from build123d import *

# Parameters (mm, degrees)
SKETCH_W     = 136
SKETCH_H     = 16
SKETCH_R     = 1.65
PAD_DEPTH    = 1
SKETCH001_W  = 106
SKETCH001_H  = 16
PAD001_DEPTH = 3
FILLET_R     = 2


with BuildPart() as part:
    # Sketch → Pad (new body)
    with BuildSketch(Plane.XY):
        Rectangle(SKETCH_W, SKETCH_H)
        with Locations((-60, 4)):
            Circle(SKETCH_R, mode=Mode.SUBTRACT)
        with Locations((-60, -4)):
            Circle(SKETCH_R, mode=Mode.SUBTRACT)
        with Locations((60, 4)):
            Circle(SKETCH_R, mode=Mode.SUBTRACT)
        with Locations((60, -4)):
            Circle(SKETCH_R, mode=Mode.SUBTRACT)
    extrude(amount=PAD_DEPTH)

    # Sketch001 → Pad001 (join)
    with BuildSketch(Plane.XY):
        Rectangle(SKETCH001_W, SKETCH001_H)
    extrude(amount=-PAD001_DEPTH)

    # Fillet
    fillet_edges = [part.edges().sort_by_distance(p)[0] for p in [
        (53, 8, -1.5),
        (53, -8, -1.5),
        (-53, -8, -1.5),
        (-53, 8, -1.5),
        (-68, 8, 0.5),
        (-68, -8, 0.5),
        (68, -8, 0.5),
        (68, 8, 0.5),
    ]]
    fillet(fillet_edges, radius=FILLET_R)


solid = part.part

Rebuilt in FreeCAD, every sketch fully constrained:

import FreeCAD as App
import Part
import Sketcher


def edges_at(feature, points):
    """Names of the edges that pass closest to the given points."""
    edges = feature.Shape.Edges
    near = lambda p: min(range(len(edges)), key=lambda i: edges[i].distToShape(Part.Vertex(*p))[0])
    return sorted({f"Edge{near(p) + 1}" for p in points})

doc = App.newDocument("Part")
params = doc.addObject("Spreadsheet::Sheet", "Params")
for row, (alias, value) in enumerate([
    ("sketch1_diameter", "3.3 mm"),
    ("sketch1_width", "136 mm"),
    ("sketch1_height", "16 mm"),
    ("pad1_length", "1 mm"),
    ("sketch2_width", "106 mm"),
    ("sketch2_height", "16 mm"),
    ("pad2_length", "3 mm"),
    ("fillet_radius", "2 mm"),
], start=1):
    params.set(f"A{row}", alias)
    params.set(f"B{row}", "=" + value)
    params.setAlias(f"B{row}", alias)

body = doc.addObject("PartDesign::Body", "Body")

# Sketch on XY plane
sketch1 = doc.addObject("Sketcher::SketchObject", "Sketch")
body.addObject(sketch1)
sketch1.AttachmentSupport = (doc.XY_Plane, [""])
sketch1.MapMode = "FlatFace"
sketch1.addGeometry([
    Part.LineSegment(App.Vector(-68, 8, 0), App.Vector(-68, -8, 0)),  # 0
    Part.LineSegment(App.Vector(-68, -8, 0), App.Vector(68, -8, 0)),  # 1
    Part.LineSegment(App.Vector(68, -8, 0), App.Vector(68, 8, 0)),  # 2
    Part.LineSegment(App.Vector(68, 8, 0), App.Vector(-68, 8, 0)),  # 3
    Part.Circle(App.Vector(-60, -4, 0), App.Vector(0, 0, 1), 1.65),  # 4
    Part.Circle(App.Vector(60, -4, 0), App.Vector(0, 0, 1), 1.65),  # 5
    Part.Circle(App.Vector(-60, 4, 0), App.Vector(0, 0, 1), 1.65),  # 6
    Part.Circle(App.Vector(60, 4, 0), App.Vector(0, 0, 1), 1.65),  # 7
], False)
sketch1.addConstraint([
    Sketcher.Constraint("Coincident", 0, 2, 1, 1),
    Sketcher.Constraint("Coincident", 1, 2, 2, 1),
    Sketcher.Constraint("Coincident", 2, 2, 3, 1),
    Sketcher.Constraint("Coincident", 3, 2, 0, 1),
    Sketcher.Constraint("Vertical", 0),
    Sketcher.Constraint("Horizontal", 1),
    Sketcher.Constraint("Vertical", 2),
    Sketcher.Constraint("Horizontal", 3),
    Sketcher.Constraint("Equal", 4, 5),
    Sketcher.Constraint("Equal", 5, 6),
    Sketcher.Constraint("Equal", 6, 7),
    Sketcher.Constraint("Symmetric", 5, 3, 6, 3, -1, 1),
    Sketcher.Constraint("Symmetric", 4, 3, 7, 3, -1, 1),
    Sketcher.Constraint("Symmetric", 0, 2, 2, 2, -1, 1),
    Sketcher.Constraint("Symmetric", 4, 3, 5, 3, -2),
    Sketcher.Constraint("Diameter", 4, 3.3),
    Sketcher.Constraint("DistanceX", 1, 1, 1, 2, 136.0),
    Sketcher.Constraint("DistanceY", 0, 2, 0, 1, 16.0),
    Sketcher.Constraint("DistanceX", 4, 3, -1, 1, 60.0),
    Sketcher.Constraint("DistanceY", 4, 3, -1, 1, 4.0),
])
sketch1.setExpression("Constraints[15]", "Params.sketch1_diameter")
sketch1.setExpression("Constraints[16]", "Params.sketch1_width")
sketch1.setExpression("Constraints[17]", "Params.sketch1_height")
pad1 = doc.addObject("PartDesign::Pad", "Pad")
body.addObject(pad1)
pad1.Profile = sketch1
pad1.setExpression("Length", "Params.pad1_length")

# Sketch on XY plane
sketch2 = doc.addObject("Sketcher::SketchObject", "Sketch001")
body.addObject(sketch2)
sketch2.AttachmentSupport = (doc.XY_Plane, [""])
sketch2.MapMode = "FlatFace"
sketch2.addGeometry([
    Part.LineSegment(App.Vector(-53, 8, 0), App.Vector(-53, -8, 0)),
    Part.LineSegment(App.Vector(-53, -8, 0), App.Vector(53, -8, 0)),
    Part.LineSegment(App.Vector(53, -8, 0), App.Vector(53, 8, 0)),
    Part.LineSegment(App.Vector(53, 8, 0), App.Vector(-53, 8, 0)),
], False)
sketch2.addConstraint([
    Sketcher.Constraint("Coincident", 0, 2, 1, 1),
    Sketcher.Constraint("Coincident", 1, 2, 2, 1),
    Sketcher.Constraint("Coincident", 2, 2, 3, 1),
    Sketcher.Constraint("Coincident", 3, 2, 0, 1),
    Sketcher.Constraint("Vertical", 0),
    Sketcher.Constraint("Horizontal", 1),
    Sketcher.Constraint("Vertical", 2),
    Sketcher.Constraint("Horizontal", 3),
    Sketcher.Constraint("Symmetric", 0, 2, 2, 2, -1, 1),
    Sketcher.Constraint("DistanceX", 1, 1, 1, 2, 106.0),
    Sketcher.Constraint("DistanceY", 0, 2, 0, 1, 16.0),
])
sketch2.setExpression("Constraints[9]", "Params.sketch2_width")
sketch2.setExpression("Constraints[10]", "Params.sketch2_height")
pad2 = doc.addObject("PartDesign::Pad", "Pad001")
body.addObject(pad2)
pad2.Profile = sketch2
pad2.setExpression("Length", "Params.pad2_length")
pad2.Reversed = True
doc.recompute()

fillet = doc.addObject("PartDesign::Fillet", "Fillet")
body.addObject(fillet)
fillet.Base = (pad2, edges_at(pad2, [
    (53, 8, -1.5),
    (53, -8, -1.5),
    (-53, -8, -1.5),
    (-53, 8, -1.5),
    (-68, 8, 0.5),
    (-68, -8, 0.5),
    (68, -8, 0.5),
    (68, 8, 0.5),
]))
fillet.setExpression("Radius", "Params.fillet_radius")

doc.recompute()
